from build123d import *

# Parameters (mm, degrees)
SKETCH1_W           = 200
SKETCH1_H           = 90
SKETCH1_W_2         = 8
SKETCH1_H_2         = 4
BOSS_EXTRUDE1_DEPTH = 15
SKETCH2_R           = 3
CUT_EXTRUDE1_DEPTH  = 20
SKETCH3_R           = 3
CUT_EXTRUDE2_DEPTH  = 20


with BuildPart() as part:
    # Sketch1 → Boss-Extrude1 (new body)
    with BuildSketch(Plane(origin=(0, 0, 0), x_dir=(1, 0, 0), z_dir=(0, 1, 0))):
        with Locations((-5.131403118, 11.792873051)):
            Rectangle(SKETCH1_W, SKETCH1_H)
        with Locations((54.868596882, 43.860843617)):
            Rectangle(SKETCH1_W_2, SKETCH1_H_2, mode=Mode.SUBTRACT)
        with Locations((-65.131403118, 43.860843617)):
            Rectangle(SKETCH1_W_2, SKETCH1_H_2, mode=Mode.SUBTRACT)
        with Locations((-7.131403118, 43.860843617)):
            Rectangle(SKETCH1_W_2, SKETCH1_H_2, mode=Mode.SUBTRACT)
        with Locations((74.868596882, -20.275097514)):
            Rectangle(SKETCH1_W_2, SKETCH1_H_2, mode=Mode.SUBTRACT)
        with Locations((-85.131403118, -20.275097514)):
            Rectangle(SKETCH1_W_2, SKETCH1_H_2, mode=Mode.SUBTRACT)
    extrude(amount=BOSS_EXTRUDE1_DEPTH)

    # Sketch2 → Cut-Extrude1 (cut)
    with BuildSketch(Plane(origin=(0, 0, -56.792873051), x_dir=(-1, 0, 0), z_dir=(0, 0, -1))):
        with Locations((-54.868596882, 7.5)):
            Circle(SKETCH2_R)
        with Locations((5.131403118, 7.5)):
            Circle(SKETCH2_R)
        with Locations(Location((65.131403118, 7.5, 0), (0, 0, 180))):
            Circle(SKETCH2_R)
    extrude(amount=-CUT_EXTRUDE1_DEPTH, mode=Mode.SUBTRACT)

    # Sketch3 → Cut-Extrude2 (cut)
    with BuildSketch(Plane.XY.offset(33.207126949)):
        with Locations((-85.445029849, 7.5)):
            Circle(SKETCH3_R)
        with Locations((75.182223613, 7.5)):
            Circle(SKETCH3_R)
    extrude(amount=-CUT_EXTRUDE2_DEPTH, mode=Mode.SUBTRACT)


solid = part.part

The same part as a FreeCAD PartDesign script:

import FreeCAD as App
import Part
import Sketcher

V = App.Vector
Q = App.Units.Quantity

doc = App.newDocument("Part")
body = doc.addObject("PartDesign::Body", "Body")

# Sketch on XZ plane
sketch1 = doc.addObject("Sketcher::SketchObject", "Sketch")
body.addObject(sketch1)
sketch1.AttachmentSupport = (doc.XZ_Plane, [""])
sketch1.MapMode = "FlatFace"
sketch1.addGeometry([
    Part.LineSegment(V(-105.131403, -56.792873, 0), V(-105.131403, 33.207127, 0)),  # 0
    Part.LineSegment(V(-105.131403, 33.207127, 0), V(94.868597, 33.207127, 0)),  # 1
    Part.LineSegment(V(94.868597, 33.207127, 0), V(94.868597, -56.792873, 0)),  # 2
    Part.LineSegment(V(94.868597, -56.792873, 0), V(-105.131403, -56.792873, 0)),  # 3
    Part.LineSegment(V(-81.131403, 22.275098, 0), V(-89.131403, 22.275098, 0)),  # 4
    Part.LineSegment(V(-89.131403, 22.275098, 0), V(-89.131403, 18.275098, 0)),  # 5
    Part.LineSegment(V(-89.131403, 18.275098, 0), V(-81.131403, 18.275098, 0)),  # 6
    Part.LineSegment(V(-81.131403, 18.275098, 0), V(-81.131403, 22.275098, 0)),  # 7
    Part.LineSegment(V(78.868597, 22.275098, 0), V(70.868597, 22.275098, 0)),  # 8
    Part.LineSegment(V(70.868597, 22.275098, 0), V(70.868597, 18.275098, 0)),  # 9
    Part.LineSegment(V(70.868597, 18.275098, 0), V(78.868597, 18.275098, 0)),  # 10
    Part.LineSegment(V(78.868597, 18.275098, 0), V(78.868597, 22.275098, 0)),  # 11
    Part.LineSegment(V(-61.131403, -41.860844, 0), V(-69.131403, -41.860844, 0)),  # 12
    Part.LineSegment(V(-69.131403, -41.860844, 0), V(-69.131403, -45.860844, 0)),  # 13
    Part.LineSegment(V(-69.131403, -45.860844, 0), V(-61.131403, -45.860844, 0)),  # 14
    Part.LineSegment(V(-61.131403, -45.860844, 0), V(-61.131403, -41.860844, 0)),  # 15
    Part.LineSegment(V(-3.131403, -41.860844, 0), V(-11.131403, -41.860844, 0)),  # 16
    Part.LineSegment(V(-11.131403, -41.860844, 0), V(-11.131403, -45.860844, 0)),  # 17
    Part.LineSegment(V(-11.131403, -45.860844, 0), V(-3.131403, -45.860844, 0)),  # 18
    Part.LineSegment(V(-3.131403, -45.860844, 0), V(-3.131403, -41.860844, 0)),  # 19
    Part.LineSegment(V(58.868597, -41.860844, 0), V(50.868597, -41.860844, 0)),  # 20
    Part.LineSegment(V(50.868597, -41.860844, 0), V(50.868597, -45.860844, 0)),  # 21
    Part.LineSegment(V(50.868597, -45.860844, 0), V(58.868597, -45.860844, 0)),  # 22
    Part.LineSegment(V(58.868597, -45.860844, 0), V(58.868597, -41.860844, 0)),  # 23
], False)
sketch1.addConstraint([
    Sketcher.Constraint("Coincident", 0, 2, 1, 1),
    Sketcher.Constraint("Coincident", 1, 2, 2, 1),
    Sketcher.Constraint("Coincident", 2, 2, 3, 1),
    Sketcher.Constraint("Coincident", 3, 2, 0, 1),
    Sketcher.Constraint("Coincident", 4, 2, 5, 1),
    Sketcher.Constraint("Coincident", 5, 2, 6, 1),
    Sketcher.Constraint("Coincident", 6, 2, 7, 1),
    Sketcher.Constraint("Coincident", 7, 2, 4, 1),
    Sketcher.Constraint("Coincident", 8, 2, 9, 1),
    Sketcher.Constraint("Coincident", 9, 2, 10, 1),
    Sketcher.Constraint("Coincident", 10, 2, 11, 1),
    Sketcher.Constraint("Coincident", 11, 2, 8, 1),
    Sketcher.Constraint("Coincident", 12, 2, 13, 1),
    Sketcher.Constraint("Coincident", 13, 2, 14, 1),
    Sketcher.Constraint("Coincident", 14, 2, 15, 1),
    Sketcher.Constraint("Coincident", 15, 2, 12, 1),
    Sketcher.Constraint("Coincident", 16, 2, 17, 1),
    Sketcher.Constraint("Coincident", 17, 2, 18, 1),
    Sketcher.Constraint("Coincident", 18, 2, 19, 1),
    Sketcher.Constraint("Coincident", 19, 2, 16, 1),
    Sketcher.Constraint("Coincident", 20, 2, 21, 1),
    Sketcher.Constraint("Coincident", 21, 2, 22, 1),
    Sketcher.Constraint("Coincident", 22, 2, 23, 1),
    Sketcher.Constraint("Coincident", 23, 2, 20, 1),
    Sketcher.Constraint("Vertical", 0),
    Sketcher.Constraint("Horizontal", 1),
    Sketcher.Constraint("Vertical", 2),
    Sketcher.Constraint("Horizontal", 3),
    Sketcher.Constraint("Horizontal", 4),
    Sketcher.Constraint("Vertical", 5),
    Sketcher.Constraint("Horizontal", 6),
    Sketcher.Constraint("Vertical", 7),
    Sketcher.Constraint("Horizontal", 8),
    Sketcher.Constraint("Vertical", 9),
    Sketcher.Constraint("Horizontal", 10),
    Sketcher.Constraint("Vertical", 11),
    Sketcher.Constraint("Horizontal", 12),
    Sketcher.Constraint("Vertical", 13),
    Sketcher.Constraint("Horizontal", 14),
    Sketcher.Constraint("Vertical", 15),
    Sketcher.Constraint("Horizontal", 16),
    Sketcher.Constraint("Vertical", 17),
    Sketcher.Constraint("Horizontal", 18),
    Sketcher.Constraint("Vertical", 19),
    Sketcher.Constraint("Horizontal", 20),
    Sketcher.Constraint("Vertical", 21),
    Sketcher.Constraint("Horizontal", 22),
    Sketcher.Constraint("Vertical", 23),
    Sketcher.Constraint("Horizontal", 7, 2, 8, 2),
    Sketcher.Constraint("Horizontal", 6, 2, 9, 2),
    Sketcher.Constraint("Horizontal", 15, 2, 16, 2),
    Sketcher.Constraint("Horizontal", 14, 2, 17, 2),
    Sketcher.Constraint("Horizontal", 19, 2, 20, 2),
    Sketcher.Constraint("Horizontal", 18, 2, 21, 2),
    Sketcher.Constraint("Equal", 6, 8),
    Sketcher.Constraint("Equal", 10, 12),
    Sketcher.Constraint("Equal", 14, 16),
    Sketcher.Constraint("Equal", 18, 20),
    Sketcher.Constraint("Equal", 11, 13),
    Sketcher.Constraint("DistanceX", 1, 1, 1, 2, Q("200 mm")),
    Sketcher.Constraint("DistanceX", 4, 2, 4, 1, Q("8 mm")),
    Sketcher.Constraint("DistanceY", 0, 1, 0, 2, Q("90 mm")),
    Sketcher.Constraint("DistanceY", 5, 2, 5, 1, Q("4 mm")),
    Sketcher.Constraint("DistanceX", 0, 2, 4, 2, Q("16 mm")),
    Sketcher.Constraint("DistanceX", 8, 2, 1, 2, Q("24 mm")),
    Sketcher.Constraint("DistanceX", 3, 2, 12, 2, Q("36 mm")),
    Sketcher.Constraint("DistanceX", 15, 2, 16, 2, Q("50 mm")),
    Sketcher.Constraint("DistanceX", 20, 2, 2, 2, Q("44 mm")),
    Sketcher.Constraint("DistanceY", 4, 2, 0, 2, Q("10.932029 mm")),
    Sketcher.Constraint("DistanceY", 3, 2, 12, 2, Q("14.932029 mm")),
    Sketcher.Constraint("DistanceX", 0, 2, -1, 1, Q("105.131403 mm")),
    Sketcher.Constraint("DistanceY", -1, 1, 0, 2, Q("33.207127 mm")),
])
pad1 = doc.addObject("PartDesign::Pad", "Pad")
body.addObject(pad1)
pad1.Profile = sketch1
pad1.Length = 15
pad1.Reversed = True

# Sketch on XY plane
sketch2 = doc.addObject("Sketcher::SketchObject", "Sketch001")
body.addObject(sketch2)
sketch2.AttachmentSupport = (doc.XY_Plane, [""])
sketch2.MapMode = "FlatFace"
sketch2.AttachmentOffset = App.Placement(V(0, 0, -56.792873), App.Rotation())
sketch2.addGeometry([
    Part.Circle(V(54.868597, 7.5, 0), V(0, 0, 1), 3),
    Part.Circle(V(-5.131403, 7.5, 0), V(0, 0, 1), 3),
    Part.Circle(V(-65.131403, 7.5, 0), V(0, 0, 1), 3),
], False)
sketch2.addConstraint([
    Sketcher.Constraint("Equal", 0, 1),
    Sketcher.Constraint("Equal", 1, 2),
    Sketcher.Constraint("Horizontal", 0, 3, 1, 3),
    Sketcher.Constraint("Horizontal", 1, 3, 2, 3),
    Sketcher.Constraint("Diameter", 0, Q("6 mm")),
    Sketcher.Constraint("DistanceX", 1, 3, 0, 3, Q("60 mm")),
    Sketcher.Constraint("DistanceX", 2, 3, 1, 3, Q("60 mm")),
    Sketcher.Constraint("DistanceY", -1, 1, 0, 3, Q("7.5 mm")),
    Sketcher.Constraint("DistanceX", -1, 1, 0, 3, Q("54.868597 mm")),
])
pocket1 = doc.addObject("PartDesign::Pocket", "Pocket")
body.addObject(pocket1)
pocket1.Profile = sketch2
pocket1.Length = 20
pocket1.Reversed = True

# Sketch on XY plane
sketch3 = doc.addObject("Sketcher::SketchObject", "Sketch002")
body.addObject(sketch3)
sketch3.AttachmentSupport = (doc.XY_Plane, [""])
sketch3.MapMode = "FlatFace"
sketch3.AttachmentOffset = App.Placement(V(0, 0, 33.207127), App.Rotation())
sketch3.addGeometry([
    Part.Circle(V(-85.44503, 7.5, 0), V(0, 0, 1), 3),
    Part.Circle(V(75.182224, 7.5, 0), V(0, 0, 1), 3),
], False)
sketch3.addConstraint([
    Sketcher.Constraint("Equal", 0, 1),
    Sketcher.Constraint("Horizontal", 0, 3, 1, 3),
    Sketcher.Constraint("Diameter", 0, Q("6 mm")),
    Sketcher.Constraint("DistanceY", -1, 1, 0, 3, Q("7.5 mm")),
    Sketcher.Constraint("DistanceX", 0, 3, -1, 1, Q("85.44503 mm")),
    Sketcher.Constraint("DistanceX", -1, 1, 1, 3, Q("75.182224 mm")),
])
pocket2 = doc.addObject("PartDesign::Pocket", "Pocket001")
body.addObject(pocket2)
pocket2.Profile = sketch3
pocket2.Length = 20

doc.recompute()
